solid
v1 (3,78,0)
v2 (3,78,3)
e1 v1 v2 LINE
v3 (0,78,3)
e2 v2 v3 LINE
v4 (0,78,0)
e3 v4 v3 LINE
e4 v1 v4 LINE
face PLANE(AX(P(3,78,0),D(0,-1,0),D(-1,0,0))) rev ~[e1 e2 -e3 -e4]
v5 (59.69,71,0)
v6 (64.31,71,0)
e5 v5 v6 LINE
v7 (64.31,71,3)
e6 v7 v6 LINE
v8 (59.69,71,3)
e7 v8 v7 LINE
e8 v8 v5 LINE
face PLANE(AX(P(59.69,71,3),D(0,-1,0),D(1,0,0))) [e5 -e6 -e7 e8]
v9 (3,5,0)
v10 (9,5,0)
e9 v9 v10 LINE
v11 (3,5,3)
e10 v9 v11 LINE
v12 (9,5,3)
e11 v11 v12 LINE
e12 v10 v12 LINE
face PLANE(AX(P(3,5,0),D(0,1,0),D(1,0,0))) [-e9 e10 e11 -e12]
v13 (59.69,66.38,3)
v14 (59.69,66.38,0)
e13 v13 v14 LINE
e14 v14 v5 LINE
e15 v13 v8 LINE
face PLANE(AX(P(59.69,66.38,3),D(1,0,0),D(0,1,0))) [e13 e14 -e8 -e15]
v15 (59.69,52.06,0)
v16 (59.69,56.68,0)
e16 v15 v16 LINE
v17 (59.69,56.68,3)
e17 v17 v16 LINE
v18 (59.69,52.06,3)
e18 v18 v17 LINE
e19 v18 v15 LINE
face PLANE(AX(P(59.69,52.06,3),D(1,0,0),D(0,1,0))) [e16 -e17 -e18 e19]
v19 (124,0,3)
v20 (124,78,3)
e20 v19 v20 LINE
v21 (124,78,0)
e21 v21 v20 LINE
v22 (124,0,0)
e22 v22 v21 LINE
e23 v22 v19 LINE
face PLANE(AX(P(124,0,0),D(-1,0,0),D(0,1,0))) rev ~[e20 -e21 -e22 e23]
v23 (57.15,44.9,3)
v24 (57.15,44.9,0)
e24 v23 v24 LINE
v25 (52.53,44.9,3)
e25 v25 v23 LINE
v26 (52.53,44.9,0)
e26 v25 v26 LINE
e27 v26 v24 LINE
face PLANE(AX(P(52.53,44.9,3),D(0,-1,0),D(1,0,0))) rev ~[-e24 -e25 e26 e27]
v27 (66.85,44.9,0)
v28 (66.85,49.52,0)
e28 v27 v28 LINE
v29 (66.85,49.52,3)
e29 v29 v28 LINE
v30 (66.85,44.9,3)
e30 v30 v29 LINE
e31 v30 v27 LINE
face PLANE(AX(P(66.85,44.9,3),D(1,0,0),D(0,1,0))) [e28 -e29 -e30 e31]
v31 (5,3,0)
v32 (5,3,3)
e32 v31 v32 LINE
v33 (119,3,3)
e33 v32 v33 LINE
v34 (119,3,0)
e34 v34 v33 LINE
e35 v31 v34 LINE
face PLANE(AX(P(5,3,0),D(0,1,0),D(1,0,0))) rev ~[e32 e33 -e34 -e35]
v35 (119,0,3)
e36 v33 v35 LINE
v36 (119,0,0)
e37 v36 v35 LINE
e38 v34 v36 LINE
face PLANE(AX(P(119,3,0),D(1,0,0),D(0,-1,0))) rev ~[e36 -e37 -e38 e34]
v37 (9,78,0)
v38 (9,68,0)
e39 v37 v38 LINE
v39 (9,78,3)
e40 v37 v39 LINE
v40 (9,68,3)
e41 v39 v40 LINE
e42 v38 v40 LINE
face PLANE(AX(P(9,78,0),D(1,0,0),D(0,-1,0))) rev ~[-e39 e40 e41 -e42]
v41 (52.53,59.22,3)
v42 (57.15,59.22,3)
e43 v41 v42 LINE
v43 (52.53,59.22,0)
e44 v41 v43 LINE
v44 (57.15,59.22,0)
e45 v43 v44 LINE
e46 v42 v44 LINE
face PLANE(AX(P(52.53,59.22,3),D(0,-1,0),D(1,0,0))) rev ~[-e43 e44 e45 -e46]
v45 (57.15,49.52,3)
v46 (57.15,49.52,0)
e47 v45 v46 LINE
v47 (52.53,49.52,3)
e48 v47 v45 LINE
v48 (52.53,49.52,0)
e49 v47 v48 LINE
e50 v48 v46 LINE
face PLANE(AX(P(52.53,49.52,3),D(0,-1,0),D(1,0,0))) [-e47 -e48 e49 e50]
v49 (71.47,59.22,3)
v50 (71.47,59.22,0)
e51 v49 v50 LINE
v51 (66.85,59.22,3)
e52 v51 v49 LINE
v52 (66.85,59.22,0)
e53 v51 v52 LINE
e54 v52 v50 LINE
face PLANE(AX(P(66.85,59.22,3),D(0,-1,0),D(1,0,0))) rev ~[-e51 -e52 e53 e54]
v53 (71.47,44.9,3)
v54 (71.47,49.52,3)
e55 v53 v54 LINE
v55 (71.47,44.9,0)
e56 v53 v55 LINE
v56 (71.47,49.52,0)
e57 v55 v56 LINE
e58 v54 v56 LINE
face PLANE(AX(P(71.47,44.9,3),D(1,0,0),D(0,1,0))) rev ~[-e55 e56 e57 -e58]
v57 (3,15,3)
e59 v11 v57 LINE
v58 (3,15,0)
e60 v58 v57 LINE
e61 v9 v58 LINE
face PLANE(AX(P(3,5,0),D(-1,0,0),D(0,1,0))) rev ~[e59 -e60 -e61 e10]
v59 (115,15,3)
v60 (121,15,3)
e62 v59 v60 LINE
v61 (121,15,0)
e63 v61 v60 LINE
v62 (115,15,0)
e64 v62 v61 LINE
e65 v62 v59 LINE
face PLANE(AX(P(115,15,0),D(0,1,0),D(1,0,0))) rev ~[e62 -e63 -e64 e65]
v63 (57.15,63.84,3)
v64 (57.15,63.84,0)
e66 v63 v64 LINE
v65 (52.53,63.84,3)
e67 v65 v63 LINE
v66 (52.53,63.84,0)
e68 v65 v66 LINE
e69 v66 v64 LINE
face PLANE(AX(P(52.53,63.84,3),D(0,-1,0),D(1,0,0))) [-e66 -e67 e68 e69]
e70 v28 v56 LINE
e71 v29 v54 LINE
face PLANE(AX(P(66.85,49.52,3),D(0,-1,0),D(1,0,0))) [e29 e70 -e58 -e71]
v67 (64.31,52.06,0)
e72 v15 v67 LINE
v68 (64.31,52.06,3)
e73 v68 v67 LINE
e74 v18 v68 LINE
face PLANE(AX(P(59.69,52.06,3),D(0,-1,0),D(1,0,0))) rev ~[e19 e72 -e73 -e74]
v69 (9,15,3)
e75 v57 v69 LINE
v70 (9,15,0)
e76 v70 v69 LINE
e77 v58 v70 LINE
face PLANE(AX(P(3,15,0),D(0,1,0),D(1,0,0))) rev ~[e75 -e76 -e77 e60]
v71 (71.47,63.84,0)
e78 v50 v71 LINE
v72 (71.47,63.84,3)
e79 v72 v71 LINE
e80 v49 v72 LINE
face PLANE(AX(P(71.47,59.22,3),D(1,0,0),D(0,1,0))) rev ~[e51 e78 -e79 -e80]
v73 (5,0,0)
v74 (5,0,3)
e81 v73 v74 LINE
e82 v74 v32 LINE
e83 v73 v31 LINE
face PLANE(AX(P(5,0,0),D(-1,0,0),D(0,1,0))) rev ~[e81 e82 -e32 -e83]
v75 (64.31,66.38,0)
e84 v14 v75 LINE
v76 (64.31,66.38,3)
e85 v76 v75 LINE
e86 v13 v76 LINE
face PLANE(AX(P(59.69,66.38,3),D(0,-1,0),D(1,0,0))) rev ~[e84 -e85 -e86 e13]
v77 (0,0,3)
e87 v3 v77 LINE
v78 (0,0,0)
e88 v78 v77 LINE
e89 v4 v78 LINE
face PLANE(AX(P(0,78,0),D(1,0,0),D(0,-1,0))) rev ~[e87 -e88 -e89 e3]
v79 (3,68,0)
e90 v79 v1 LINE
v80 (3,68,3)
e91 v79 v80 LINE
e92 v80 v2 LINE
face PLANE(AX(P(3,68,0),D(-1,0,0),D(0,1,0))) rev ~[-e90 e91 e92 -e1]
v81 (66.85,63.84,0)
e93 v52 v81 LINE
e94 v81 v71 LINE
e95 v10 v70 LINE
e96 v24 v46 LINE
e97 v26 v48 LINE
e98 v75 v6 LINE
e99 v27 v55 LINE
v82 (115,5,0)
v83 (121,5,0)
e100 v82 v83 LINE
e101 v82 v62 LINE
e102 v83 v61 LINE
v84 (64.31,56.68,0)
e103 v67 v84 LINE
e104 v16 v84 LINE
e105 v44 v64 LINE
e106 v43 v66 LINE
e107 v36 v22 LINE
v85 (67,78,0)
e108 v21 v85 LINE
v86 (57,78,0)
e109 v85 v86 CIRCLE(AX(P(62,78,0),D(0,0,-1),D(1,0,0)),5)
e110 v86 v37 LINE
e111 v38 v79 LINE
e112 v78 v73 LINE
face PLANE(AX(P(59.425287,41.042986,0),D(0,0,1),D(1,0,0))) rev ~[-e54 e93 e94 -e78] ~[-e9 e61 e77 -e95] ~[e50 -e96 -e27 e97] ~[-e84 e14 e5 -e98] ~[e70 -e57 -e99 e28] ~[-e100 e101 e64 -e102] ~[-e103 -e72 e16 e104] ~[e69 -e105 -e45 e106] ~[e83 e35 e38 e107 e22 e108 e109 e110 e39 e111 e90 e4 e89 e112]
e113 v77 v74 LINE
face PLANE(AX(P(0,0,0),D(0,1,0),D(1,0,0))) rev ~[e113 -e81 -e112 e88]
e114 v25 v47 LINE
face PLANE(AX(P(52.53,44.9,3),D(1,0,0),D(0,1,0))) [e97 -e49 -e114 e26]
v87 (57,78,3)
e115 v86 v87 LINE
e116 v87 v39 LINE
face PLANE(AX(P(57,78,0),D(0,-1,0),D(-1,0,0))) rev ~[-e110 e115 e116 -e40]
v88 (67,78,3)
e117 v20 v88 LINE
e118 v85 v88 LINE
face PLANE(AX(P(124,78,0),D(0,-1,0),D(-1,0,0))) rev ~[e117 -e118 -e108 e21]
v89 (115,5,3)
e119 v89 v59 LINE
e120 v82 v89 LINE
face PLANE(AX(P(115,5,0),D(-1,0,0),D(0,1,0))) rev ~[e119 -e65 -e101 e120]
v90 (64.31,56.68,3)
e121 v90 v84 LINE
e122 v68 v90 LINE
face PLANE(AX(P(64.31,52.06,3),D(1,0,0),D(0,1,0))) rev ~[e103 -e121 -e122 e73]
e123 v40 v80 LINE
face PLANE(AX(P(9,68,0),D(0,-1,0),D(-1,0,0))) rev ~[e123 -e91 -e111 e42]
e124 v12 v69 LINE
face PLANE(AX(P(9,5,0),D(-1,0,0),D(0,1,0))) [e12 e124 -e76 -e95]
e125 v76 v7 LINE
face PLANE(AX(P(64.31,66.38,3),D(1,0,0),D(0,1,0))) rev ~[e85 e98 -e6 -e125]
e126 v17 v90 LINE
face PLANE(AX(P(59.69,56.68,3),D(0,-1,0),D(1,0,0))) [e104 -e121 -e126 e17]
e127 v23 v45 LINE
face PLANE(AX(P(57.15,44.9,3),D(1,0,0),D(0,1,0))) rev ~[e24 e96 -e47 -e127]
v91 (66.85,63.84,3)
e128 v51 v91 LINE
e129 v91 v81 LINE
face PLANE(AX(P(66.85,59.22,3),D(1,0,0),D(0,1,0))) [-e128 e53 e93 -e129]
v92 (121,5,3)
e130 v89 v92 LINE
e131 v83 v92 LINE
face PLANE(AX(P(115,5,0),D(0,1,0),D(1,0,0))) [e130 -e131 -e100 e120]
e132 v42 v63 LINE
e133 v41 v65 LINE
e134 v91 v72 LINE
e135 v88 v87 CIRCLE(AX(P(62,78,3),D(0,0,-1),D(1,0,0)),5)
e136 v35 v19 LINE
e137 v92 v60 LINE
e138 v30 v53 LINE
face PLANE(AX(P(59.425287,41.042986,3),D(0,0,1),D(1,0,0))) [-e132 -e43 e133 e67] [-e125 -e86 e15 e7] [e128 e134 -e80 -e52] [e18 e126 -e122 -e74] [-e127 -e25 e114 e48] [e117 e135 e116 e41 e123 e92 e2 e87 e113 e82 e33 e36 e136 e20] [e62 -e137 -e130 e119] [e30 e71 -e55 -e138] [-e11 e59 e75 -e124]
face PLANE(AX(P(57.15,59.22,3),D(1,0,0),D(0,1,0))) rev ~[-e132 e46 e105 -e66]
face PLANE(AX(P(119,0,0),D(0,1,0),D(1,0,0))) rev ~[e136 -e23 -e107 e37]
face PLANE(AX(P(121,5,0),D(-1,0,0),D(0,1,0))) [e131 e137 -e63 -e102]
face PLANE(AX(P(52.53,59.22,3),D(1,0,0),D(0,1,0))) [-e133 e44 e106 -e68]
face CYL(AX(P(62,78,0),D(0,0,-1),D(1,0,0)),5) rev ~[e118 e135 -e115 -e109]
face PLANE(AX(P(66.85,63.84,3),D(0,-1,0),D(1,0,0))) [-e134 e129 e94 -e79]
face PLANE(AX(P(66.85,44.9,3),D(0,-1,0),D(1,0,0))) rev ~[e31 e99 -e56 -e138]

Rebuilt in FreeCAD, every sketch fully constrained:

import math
import FreeCAD as App
import Part
import Sketcher

V = App.Vector
Q = App.Units.Quantity


def add_polygon(sketch, points):
    """Adds a closed chain of lines whose ends are joined by coincident constraints."""
    first, n = sketch.GeometryCount, len(points)
    for a, b in zip(points, points[1:] + points[:1]):
        sketch.addGeometry(Part.LineSegment(App.Vector(*a, 0), App.Vector(*b, 0)), False)
    for i in range(n):
        sketch.addConstraint(Sketcher.Constraint("Coincident", first + i, 2, first + (i + 1) % n, 1))

doc = App.newDocument("Part")
params = doc.addObject("Spreadsheet::Sheet", "Params")
for row, (alias, value) in enumerate([
    ("sketch1_radius", "5 mm"),
    ("sketch1_width", "5 mm"),
    ("sketch1_width2", "114 mm"),
    ("sketch1_width3", "57 mm"),
    ("sketch1_width4", "48 mm"),
    ("pad1_length", "3 mm"),
    ("sketch2_width", "4.62 mm"),
], start=1):
    params.set(f"A{row}", alias)
    params.set(f"B{row}", "=" + value)
    params.setAlias(f"B{row}", alias)

body = doc.addObject("PartDesign::Body", "Body")

# Sketch on XY plane
sketch1 = body.newObject("Sketcher::SketchObject", "Sketch")
sketch1.AttachmentSupport = (doc.getObject("XY_Plane"), [""])
sketch1.MapMode = "FlatFace"
sketch1.addGeometry(Part.LineSegment(V(0, 0, 0), V(5, 0, 0)), False)  # 0
sketch1.addGeometry(Part.LineSegment(V(5, 0, 0), V(5, 3, 0)), False)  # 1
sketch1.addGeometry(Part.LineSegment(V(5, 3, 0), V(119, 3, 0)), False)  # 2
sketch1.addGeometry(Part.LineSegment(V(119, 3, 0), V(119, 0, 0)), False)  # 3
sketch1.addGeometry(Part.LineSegment(V(119, 0, 0), V(124, 0, 0)), False)  # 4
sketch1.addGeometry(Part.LineSegment(V(124, 0, 0), V(124, 78, 0)), False)  # 5
sketch1.addGeometry(Part.LineSegment(V(124, 78, 0), V(67, 78, 0)), False)  # 6
sketch1.addGeometry(Part.ArcOfCircle(Part.Circle(V(62, 78, 0), V(0, 0, 1), 5), math.radians(180), math.radians(360)), False)  # 7
sketch1.addGeometry(Part.LineSegment(V(57, 78, 0), V(9, 78, 0)), False)  # 8
sketch1.addGeometry(Part.LineSegment(V(9, 78, 0), V(9, 68, 0)), False)  # 9
sketch1.addGeometry(Part.LineSegment(V(9, 68, 0), V(3, 68, 0)), False)  # 10
sketch1.addGeometry(Part.LineSegment(V(3, 68, 0), V(3, 78, 0)), False)  # 11
sketch1.addGeometry(Part.LineSegment(V(3, 78, 0), V(0, 78, 0)), False)  # 12
sketch1.addGeometry(Part.LineSegment(V(0, 78, 0), V(0, 0, 0)), False)  # 13
add_polygon(sketch1, [(9, 5), (3, 5), (3, 15), (9, 15)])  # lines 14-17
add_polygon(sketch1, [(121, 5), (115, 5), (115, 15), (121, 15)])  # lines 18-21
sketch1.addConstraint([
    Sketcher.Constraint("Coincident", 0, 2, 1, 1),
    Sketcher.Constraint("Coincident", 1, 2, 2, 1),
    Sketcher.Constraint("Coincident", 2, 2, 3, 1),
    Sketcher.Constraint("Coincident", 3, 2, 4, 1),
    Sketcher.Constraint("Coincident", 4, 2, 5, 1),
    Sketcher.Constraint("Coincident", 5, 2, 6, 1),
    Sketcher.Constraint("Coincident", 6, 2, 7, 2),
    Sketcher.Constraint("Coincident", 7, 1, 8, 1),
    Sketcher.Constraint("Coincident", 8, 2, 9, 1),
    Sketcher.Constraint("Coincident", 9, 2, 10, 1),
    Sketcher.Constraint("Coincident", 10, 2, 11, 1),
    Sketcher.Constraint("Coincident", 11, 2, 12, 1),
    Sketcher.Constraint("Coincident", 12, 2, 13, 1),
    Sketcher.Constraint("Coincident", 13, 2, 0, 1),
    Sketcher.Constraint("Horizontal", 0),
    Sketcher.Constraint("Vertical", 1),
    Sketcher.Constraint("Horizontal", 2),
    Sketcher.Constraint("Vertical", 3),
    Sketcher.Constraint("Horizontal", 4),
    Sketcher.Constraint("Vertical", 5),
    Sketcher.Constraint("Horizontal", 6),
    Sketcher.Constraint("Horizontal", 8),
    Sketcher.Constraint("Vertical", 9),
    Sketcher.Constraint("Horizontal", 10),
    Sketcher.Constraint("Vertical", 11),
    Sketcher.Constraint("Horizontal", 12),
    Sketcher.Constraint("Vertical", 13),
    Sketcher.Constraint("Horizontal", 14),
    Sketcher.Constraint("Vertical", 15),
    Sketcher.Constraint("Horizontal", 16),
    Sketcher.Constraint("Vertical", 17),
    Sketcher.Constraint("Horizontal", 18),
    Sketcher.Constraint("Vertical", 19),
    Sketcher.Constraint("Horizontal", 20),
    Sketcher.Constraint("Vertical", 21),
    Sketcher.Constraint("Coincident", 13, 2, -1, 1),
    Sketcher.Constraint("PointOnObject", 3, 2, -1),
    Sketcher.Constraint("Horizontal", 7, 3, 5, 2),
    Sketcher.Constraint("Horizontal", 6, 2, 7, 1),
    Sketcher.Constraint("Horizontal", 8, 2, 11, 2),
    Sketcher.Constraint("Horizontal", 17, 2, 18, 2),
    Sketcher.Constraint("Horizontal", 16, 2, 19, 2),
    Sketcher.Constraint("Vertical", 11, 2, 14, 2),
    Sketcher.Constraint("Vertical", 9, 2, 16, 2),
    Sketcher.Constraint("Equal", 0, 4),
    Sketcher.Constraint("Equal", 16, 18),
    Sketcher.Constraint("Equal", 12, 1),
    Sketcher.Constraint("Equal", 11, 15),
    Sketcher.Constraint("Radius", 7, Q("5 mm")),
    Sketcher.Constraint("DistanceX", 0, 1, 0, 2, Q("5 mm")),
    Sketcher.Constraint("DistanceX", 2, 1, 2, 2, Q("114 mm")),
    Sketcher.Constraint("DistanceX", 6, 2, 6, 1, Q("57 mm")),
    Sketcher.Constraint("DistanceX", 8, 2, 8, 1, Q("48 mm")),
    Sketcher.Constraint("DistanceX", 10, 2, 10, 1, Q("6 mm")),
    Sketcher.Constraint("DistanceY", 5, 1, 5, 2, Q("78 mm")),
    Sketcher.Constraint("DistanceY", 9, 2, 9, 1, Q("10 mm")),
    Sketcher.Constraint("DistanceY", -1, 1, 14, 2, Q("5 mm")),
    Sketcher.Constraint("DistanceX", -1, 1, 18, 2, Q("115 mm")),
])
sketch1.setExpression("Constraints[56]", "Params.sketch1_radius")
sketch1.setExpression("Constraints[57]", "Params.sketch1_width")
sketch1.setExpression("Constraints[58]", "Params.sketch1_width2")
sketch1.setExpression("Constraints[59]", "Params.sketch1_width3")
sketch1.setExpression("Constraints[60]", "Params.sketch1_width4")
pad1 = body.newObject("PartDesign::Pad", "Pad")
pad1.Profile = sketch1
pad1.setExpression("Length", "Params.pad1_length")

# Sketch on XY plane
sketch2 = body.newObject("Sketcher::SketchObject", "Sketch001")
sketch2.AttachmentSupport = (doc.getObject("XY_Plane"), [""])
sketch2.MapMode = "FlatFace"
sketch2.AttachmentOffset = App.Placement(V(0, 0, 3), App.Rotation())
add_polygon(sketch2, [(52.5, 63.8), (52.5, 59.2), (57.1, 59.2), (57.1, 63.8)])  # lines 0-3
add_polygon(sketch2, [(66.8, 63.8), (66.8, 59.2), (71.5, 59.2), (71.5, 63.8)])  # lines 4-7
add_polygon(sketch2, [(52.5, 49.5), (52.5, 44.9), (57.1, 44.9), (57.1, 49.5)])  # lines 8-11
add_polygon(sketch2, [(66.8, 49.5), (66.8, 44.9), (71.5, 44.9), (71.5, 49.5)])  # lines 12-15
add_polygon(sketch2, [(59.7, 56.7), (59.7, 52.1), (64.3, 52.1), (64.3, 56.7)])  # lines 16-19
add_polygon(sketch2, [(59.7, 71), (59.7, 66.4), (64.3, 66.4), (64.3, 71)])  # lines 20-23
sketch2.addConstraint([
    Sketcher.Constraint("Vertical", 0),
    Sketcher.Constraint("Horizontal", 1),
    Sketcher.Constraint("Vertical", 2),
    Sketcher.Constraint("Horizontal", 3),
    Sketcher.Constraint("Vertical", 4),
    Sketcher.Constraint("Horizontal", 5),
    Sketcher.Constraint("Vertical", 6),
    Sketcher.Constraint("Horizontal", 7),
    Sketcher.Constraint("Vertical", 8),
    Sketcher.Constraint("Horizontal", 9),
    Sketcher.Constraint("Vertical", 10),
    Sketcher.Constraint("Horizontal", 11),
    Sketcher.Constraint("Vertical", 12),
    Sketcher.Constraint("Horizontal", 13),
    Sketcher.Constraint("Vertical", 14),
    Sketcher.Constraint("Horizontal", 15),
    Sketcher.Constraint("Vertical", 16),
    Sketcher.Constraint("Horizontal", 17),
    Sketcher.Constraint("Vertical", 18),
    Sketcher.Constraint("Horizontal", 19),
    Sketcher.Constraint("Vertical", 20),
    Sketcher.Constraint("Horizontal", 21),
    Sketcher.Constraint("Vertical", 22),
    Sketcher.Constraint("Horizontal", 23),
    Sketcher.Constraint("Horizontal", 1, 2, 4, 2),
    Sketcher.Constraint("Horizontal", 3, 2, 6, 2),
    Sketcher.Constraint("Horizontal", 9, 2, 12, 2),
    Sketcher.Constraint("Horizontal", 11, 2, 14, 2),
    Sketcher.Constraint("Vertical", 3, 2, 8, 2),
    Sketcher.Constraint("Vertical", 2, 2, 9, 2),
    Sketcher.Constraint("Vertical", 7, 2, 12, 2),
    Sketcher.Constraint("Vertical", 6, 2, 13, 2),
    Sketcher.Constraint("Vertical", 19, 2, 20, 2),
    Sketcher.Constraint("Vertical", 18, 2, 21, 2),
    Sketcher.Constraint("Equal", 3, 5),
    Sketcher.Constraint("Equal", 15, 17),
    Sketcher.Constraint("Equal", 23, 0),
    Sketcher.Constraint("Equal", 6, 8),
    Sketcher.Constraint("Equal", 14, 16),
    Sketcher.Constraint("Equal", 18, 20),
    Sketcher.Constraint("DistanceY", -1, 1, 22, 2, Q("71 mm")),
    Sketcher.Constraint("DistanceX", 1, 1, 1, 2, Q("4.62 mm")),
    Sketcher.Constraint("DistanceY", -1, 1, 8, 2, Q("44.9 mm")),
    Sketcher.Constraint("DistanceX", 1, 2, 4, 2, Q("9.7 mm")),
    Sketcher.Constraint("DistanceY", 10, 2, 1, 2, Q("9.7 mm")),
    Sketcher.Constraint("DistanceY", 19, 2, 20, 2, Q("9.7 mm")),
    Sketcher.Constraint("DistanceX", -1, 1, 0, 2, Q("52.53 mm")),
    Sketcher.Constraint("DistanceX", -1, 1, 16, 2, Q("59.69 mm")),
])
sketch2.setExpression("Constraints[65]", "Params.sketch2_width")
pocket1 = body.newObject("PartDesign::Pocket", "Pocket")
pocket1.Profile = sketch2
pocket1.Type = "ThroughAll"

doc.recompute()
